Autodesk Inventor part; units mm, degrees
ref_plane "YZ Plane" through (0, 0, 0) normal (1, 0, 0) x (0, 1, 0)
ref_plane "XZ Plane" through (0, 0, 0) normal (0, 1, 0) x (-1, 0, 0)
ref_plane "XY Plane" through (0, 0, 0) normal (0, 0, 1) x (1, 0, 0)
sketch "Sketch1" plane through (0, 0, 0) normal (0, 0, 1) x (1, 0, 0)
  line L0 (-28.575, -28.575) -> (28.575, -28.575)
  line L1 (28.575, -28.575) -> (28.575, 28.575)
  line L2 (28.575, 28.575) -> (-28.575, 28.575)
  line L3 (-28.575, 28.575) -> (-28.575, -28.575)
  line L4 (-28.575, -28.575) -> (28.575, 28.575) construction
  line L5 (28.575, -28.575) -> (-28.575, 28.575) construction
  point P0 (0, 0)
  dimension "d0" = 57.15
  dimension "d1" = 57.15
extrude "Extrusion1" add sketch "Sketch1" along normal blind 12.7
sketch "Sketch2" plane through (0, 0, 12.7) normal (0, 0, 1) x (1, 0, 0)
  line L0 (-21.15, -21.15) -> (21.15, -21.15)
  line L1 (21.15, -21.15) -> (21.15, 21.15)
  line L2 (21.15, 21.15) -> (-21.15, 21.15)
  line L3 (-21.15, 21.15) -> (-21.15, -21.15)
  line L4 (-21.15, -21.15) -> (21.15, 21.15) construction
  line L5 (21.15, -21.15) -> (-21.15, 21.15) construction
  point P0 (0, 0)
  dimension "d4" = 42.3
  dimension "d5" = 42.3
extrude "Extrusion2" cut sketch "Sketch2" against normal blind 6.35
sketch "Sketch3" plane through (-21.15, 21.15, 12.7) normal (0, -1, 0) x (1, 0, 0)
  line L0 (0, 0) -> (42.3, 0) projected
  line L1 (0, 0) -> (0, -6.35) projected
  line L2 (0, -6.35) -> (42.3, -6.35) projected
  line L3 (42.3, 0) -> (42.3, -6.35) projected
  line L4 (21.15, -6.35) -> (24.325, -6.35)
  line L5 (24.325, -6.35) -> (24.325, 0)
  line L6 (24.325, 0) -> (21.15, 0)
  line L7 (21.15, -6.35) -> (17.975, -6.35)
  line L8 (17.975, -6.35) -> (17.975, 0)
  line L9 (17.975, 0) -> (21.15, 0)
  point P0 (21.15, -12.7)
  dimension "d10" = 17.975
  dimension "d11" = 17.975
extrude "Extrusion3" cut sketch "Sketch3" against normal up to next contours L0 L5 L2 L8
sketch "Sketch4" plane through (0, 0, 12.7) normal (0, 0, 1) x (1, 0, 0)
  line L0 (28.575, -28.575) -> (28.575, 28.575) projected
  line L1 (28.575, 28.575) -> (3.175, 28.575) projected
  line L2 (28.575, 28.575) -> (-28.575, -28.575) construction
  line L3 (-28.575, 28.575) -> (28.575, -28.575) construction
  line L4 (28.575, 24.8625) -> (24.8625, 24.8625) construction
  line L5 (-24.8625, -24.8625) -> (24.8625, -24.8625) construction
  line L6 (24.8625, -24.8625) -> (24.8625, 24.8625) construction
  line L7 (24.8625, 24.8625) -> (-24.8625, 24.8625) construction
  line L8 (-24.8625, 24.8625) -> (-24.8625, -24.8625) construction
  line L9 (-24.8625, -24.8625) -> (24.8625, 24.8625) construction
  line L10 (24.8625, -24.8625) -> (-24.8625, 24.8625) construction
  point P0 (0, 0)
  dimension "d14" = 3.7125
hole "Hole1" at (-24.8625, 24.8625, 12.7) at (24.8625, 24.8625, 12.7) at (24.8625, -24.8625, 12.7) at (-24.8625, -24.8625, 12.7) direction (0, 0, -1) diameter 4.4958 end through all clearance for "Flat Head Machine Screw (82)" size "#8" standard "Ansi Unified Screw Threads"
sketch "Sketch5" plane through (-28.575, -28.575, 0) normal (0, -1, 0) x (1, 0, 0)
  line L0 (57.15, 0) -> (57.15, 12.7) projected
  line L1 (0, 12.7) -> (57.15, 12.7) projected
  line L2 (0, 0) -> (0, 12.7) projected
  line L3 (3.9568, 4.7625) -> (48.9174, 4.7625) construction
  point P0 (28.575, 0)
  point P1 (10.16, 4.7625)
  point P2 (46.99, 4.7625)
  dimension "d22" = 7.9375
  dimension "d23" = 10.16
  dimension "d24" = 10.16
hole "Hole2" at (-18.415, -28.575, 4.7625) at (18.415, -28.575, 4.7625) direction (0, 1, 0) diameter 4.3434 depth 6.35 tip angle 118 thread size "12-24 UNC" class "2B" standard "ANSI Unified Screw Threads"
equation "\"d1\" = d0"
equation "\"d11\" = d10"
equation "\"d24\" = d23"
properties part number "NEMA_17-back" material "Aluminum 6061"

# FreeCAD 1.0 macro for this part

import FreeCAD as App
import Part
import Sketcher
Q = App.Units.Quantity


def add_polygon(sketch, points):
    """Adds a closed chain of lines whose ends are joined by coincident constraints."""
    first, n = sketch.GeometryCount, len(points)
    for a, b in zip(points, points[1:] + points[:1]):
        sketch.addGeometry(Part.LineSegment(App.Vector(*a, 0), App.Vector(*b, 0)), False)
    for i in range(n):
        sketch.addConstraint(Sketcher.Constraint("Coincident", first + i, 2, first + (i + 1) % n, 1))

doc = App.newDocument("Part")
body = doc.addObject("PartDesign::Body", "Body")

sketch1 = doc.addObject("Sketcher::SketchObject", "Sketch")
body.addObject(sketch1)
sketch1.AttachmentSupport = (doc.XY_Plane, [""])
sketch1.MapMode = "FlatFace"
add_polygon(sketch1, [(-29, 29), (-29, -29), (29, -29), (29, 29)])
sketch1.addConstraint(Sketcher.Constraint("Vertical", 0))
sketch1.addConstraint(Sketcher.Constraint("Horizontal", 1))
sketch1.addConstraint(Sketcher.Constraint("Vertical", 2))
sketch1.addConstraint(Sketcher.Constraint("Horizontal", 3))
sketch1.addConstraint(Sketcher.Constraint("Symmetric", 0, 2, 2, 2, -1, 1))
sketch1.addConstraint(Sketcher.Constraint("Equal", 3, 0))
sketch1.addConstraint(Sketcher.Constraint("DistanceX", 1, 1, 1, 2, Q("2.25 in")))
pad1 = doc.addObject("PartDesign::Pad", "Pad")
body.addObject(pad1)
pad1.Profile = sketch1
pad1.Length = Q("0.5 in")

sketch2 = doc.addObject("Sketcher::SketchObject", "Sketch001")
body.addObject(sketch2)
sketch2.AttachmentSupport = (doc.XY_Plane, [""])
sketch2.MapMode = "FlatFace"
sketch2.AttachmentOffset = App.Placement(App.Vector(0, 0, 0.5 * 25.4), App.Rotation())
add_polygon(sketch2, [(-21, 21), (-21, -21), (21, -21), (21, 21)])
sketch2.addConstraint(Sketcher.Constraint("Vertical", 0))
sketch2.addConstraint(Sketcher.Constraint("Horizontal", 1))
sketch2.addConstraint(Sketcher.Constraint("Vertical", 2))
sketch2.addConstraint(Sketcher.Constraint("Horizontal", 3))
sketch2.addConstraint(Sketcher.Constraint("Symmetric", 0, 2, 2, 2, -1, 1))
sketch2.addConstraint(Sketcher.Constraint("Equal", 3, 0))
sketch2.addConstraint(Sketcher.Constraint("DistanceX", 1, 1, 1, 2, Q("42.3 mm")))
pocket1 = doc.addObject("PartDesign::Pocket", "Pocket")
body.addObject(pocket1)
pocket1.Profile = sketch2
pocket1.Length = Q("0.25 in")

sketch3 = doc.addObject("Sketcher::SketchObject", "Sketch002")
body.addObject(sketch3)
sketch3.AttachmentSupport = (doc.XZ_Plane, [""])
sketch3.MapMode = "FlatFace"
sketch3.AttachmentOffset = App.Placement(App.Vector(0, 0, -21.15), App.Rotation())
add_polygon(sketch3, [(3, 13), (-3, 13), (-3, 6), (3, 6)])
sketch3.addConstraint(Sketcher.Constraint("Horizontal", 0))
sketch3.addConstraint(Sketcher.Constraint("Vertical", 1))
sketch3.addConstraint(Sketcher.Constraint("Horizontal", 2))
sketch3.addConstraint(Sketcher.Constraint("Vertical", 3))
sketch3.addConstraint(Sketcher.Constraint("Equal", 2, 1))
sketch3.addConstraint(Sketcher.Constraint("DistanceX", 0, 2, 0, 1, Q("0.25 in")))
sketch3.addConstraint(Sketcher.Constraint("DistanceY", -1, 1, 0, 2, Q("0.5 in")))
sketch3.addConstraint(Sketcher.Constraint("DistanceX", 0, 2, -1, 1, Q("0.125 in")))
pocket2 = doc.addObject("PartDesign::Pocket", "Pocket001")
body.addObject(pocket2)
pocket2.Profile = sketch3
pocket2.Type = "UpToFirst"

sketch4 = doc.addObject("Sketcher::SketchObject", "Sketch003")
body.addObject(sketch4)
sketch4.AttachmentSupport = (doc.XY_Plane, [""])
sketch4.MapMode = "FlatFace"
sketch4.AttachmentOffset = App.Placement(App.Vector(0, 0, 0.5 * 25.4), App.Rotation())
sketch4.addGeometry(Part.Circle(App.Vector(-24.9, 24.9, 0), App.Vector(0, 0, 1), 2.2), False)
sketch4.addGeometry(Part.Circle(App.Vector(24.9, 24.9, 0), App.Vector(0, 0, 1), 2.2), False)
sketch4.addGeometry(Part.Circle(App.Vector(24.9, -24.9, 0), App.Vector(0, 0, 1), 2.2), False)
sketch4.addGeometry(Part.Circle(App.Vector(-24.9, -24.9, 0), App.Vector(0, 0, 1), 2.2), False)
sketch4.addConstraint(Sketcher.Constraint("Equal", 0, 1))
sketch4.addConstraint(Sketcher.Constraint("Equal", 1, 2))
sketch4.addConstraint(Sketcher.Constraint("Equal", 2, 3))
sketch4.addConstraint(Sketcher.Constraint("Symmetric", 0, 3, 2, 3, -1, 1))
sketch4.addConstraint(Sketcher.Constraint("Symmetric", 1, 3, 3, 3, -1, 1))
sketch4.addConstraint(Sketcher.Constraint("Symmetric", 0, 3, 1, 3, -2))
sketch4.addConstraint(Sketcher.Constraint("Diameter", 0, Q("0.177 in")))
sketch4.addConstraint(Sketcher.Constraint("DistanceX", 0, 3, -1, 1, Q("24.8625 mm")))
sketch4.addConstraint(Sketcher.Constraint("DistanceY", -1, 1, 0, 3, Q("24.8625 mm")))
doc.recompute()
hole = doc.addObject("PartDesign::Hole", "Hole")
body.addObject(hole)
hole.Profile = sketch4
hole.ThreadType = "None"
hole.Diameter = Q("0.177 in")
hole.DepthType = "ThroughAll"

sketch5 = doc.addObject("Sketcher::SketchObject", "Sketch004")
body.addObject(sketch5)
sketch5.AttachmentSupport = (doc.XZ_Plane, [""])
sketch5.MapMode = "FlatFace"
sketch5.AttachmentOffset = App.Placement(App.Vector(0, 0, 1.125 * 25.4), App.Rotation())
sketch5.addGeometry(Part.Circle(App.Vector(-18.4, 4.8, 0), App.Vector(0, 0, 1), 2.2), False)
sketch5.addGeometry(Part.Circle(App.Vector(18.4, 4.8, 0), App.Vector(0, 0, 1), 2.2), False)
sketch5.addConstraint(Sketcher.Constraint("Equal", 0, 1))
sketch5.addConstraint(Sketcher.Constraint("Symmetric", 0, 3, 1, 3, -2))
sketch5.addConstraint(Sketcher.Constraint("Diameter", 0, Q("0.171 in")))
sketch5.addConstraint(Sketcher.Constraint("DistanceX", 0, 3, 1, 3, Q("1.45 in")))
sketch5.addConstraint(Sketcher.Constraint("DistanceY", -1, 1, 0, 3, Q("0.1875 in")))
doc.recompute()
hole2 = doc.addObject("PartDesign::Hole", "Hole001")
body.addObject(hole2)
hole2.Profile = sketch5
hole2.ThreadType = "None"
hole2.Diameter = Q("0.171 in")
hole2.DepthType = "Dimension"
hole2.Depth = Q("0.25 in")
hole2.DrillPoint = "Angled"
hole2.DrillPointAngle = 118

doc.recompute()
